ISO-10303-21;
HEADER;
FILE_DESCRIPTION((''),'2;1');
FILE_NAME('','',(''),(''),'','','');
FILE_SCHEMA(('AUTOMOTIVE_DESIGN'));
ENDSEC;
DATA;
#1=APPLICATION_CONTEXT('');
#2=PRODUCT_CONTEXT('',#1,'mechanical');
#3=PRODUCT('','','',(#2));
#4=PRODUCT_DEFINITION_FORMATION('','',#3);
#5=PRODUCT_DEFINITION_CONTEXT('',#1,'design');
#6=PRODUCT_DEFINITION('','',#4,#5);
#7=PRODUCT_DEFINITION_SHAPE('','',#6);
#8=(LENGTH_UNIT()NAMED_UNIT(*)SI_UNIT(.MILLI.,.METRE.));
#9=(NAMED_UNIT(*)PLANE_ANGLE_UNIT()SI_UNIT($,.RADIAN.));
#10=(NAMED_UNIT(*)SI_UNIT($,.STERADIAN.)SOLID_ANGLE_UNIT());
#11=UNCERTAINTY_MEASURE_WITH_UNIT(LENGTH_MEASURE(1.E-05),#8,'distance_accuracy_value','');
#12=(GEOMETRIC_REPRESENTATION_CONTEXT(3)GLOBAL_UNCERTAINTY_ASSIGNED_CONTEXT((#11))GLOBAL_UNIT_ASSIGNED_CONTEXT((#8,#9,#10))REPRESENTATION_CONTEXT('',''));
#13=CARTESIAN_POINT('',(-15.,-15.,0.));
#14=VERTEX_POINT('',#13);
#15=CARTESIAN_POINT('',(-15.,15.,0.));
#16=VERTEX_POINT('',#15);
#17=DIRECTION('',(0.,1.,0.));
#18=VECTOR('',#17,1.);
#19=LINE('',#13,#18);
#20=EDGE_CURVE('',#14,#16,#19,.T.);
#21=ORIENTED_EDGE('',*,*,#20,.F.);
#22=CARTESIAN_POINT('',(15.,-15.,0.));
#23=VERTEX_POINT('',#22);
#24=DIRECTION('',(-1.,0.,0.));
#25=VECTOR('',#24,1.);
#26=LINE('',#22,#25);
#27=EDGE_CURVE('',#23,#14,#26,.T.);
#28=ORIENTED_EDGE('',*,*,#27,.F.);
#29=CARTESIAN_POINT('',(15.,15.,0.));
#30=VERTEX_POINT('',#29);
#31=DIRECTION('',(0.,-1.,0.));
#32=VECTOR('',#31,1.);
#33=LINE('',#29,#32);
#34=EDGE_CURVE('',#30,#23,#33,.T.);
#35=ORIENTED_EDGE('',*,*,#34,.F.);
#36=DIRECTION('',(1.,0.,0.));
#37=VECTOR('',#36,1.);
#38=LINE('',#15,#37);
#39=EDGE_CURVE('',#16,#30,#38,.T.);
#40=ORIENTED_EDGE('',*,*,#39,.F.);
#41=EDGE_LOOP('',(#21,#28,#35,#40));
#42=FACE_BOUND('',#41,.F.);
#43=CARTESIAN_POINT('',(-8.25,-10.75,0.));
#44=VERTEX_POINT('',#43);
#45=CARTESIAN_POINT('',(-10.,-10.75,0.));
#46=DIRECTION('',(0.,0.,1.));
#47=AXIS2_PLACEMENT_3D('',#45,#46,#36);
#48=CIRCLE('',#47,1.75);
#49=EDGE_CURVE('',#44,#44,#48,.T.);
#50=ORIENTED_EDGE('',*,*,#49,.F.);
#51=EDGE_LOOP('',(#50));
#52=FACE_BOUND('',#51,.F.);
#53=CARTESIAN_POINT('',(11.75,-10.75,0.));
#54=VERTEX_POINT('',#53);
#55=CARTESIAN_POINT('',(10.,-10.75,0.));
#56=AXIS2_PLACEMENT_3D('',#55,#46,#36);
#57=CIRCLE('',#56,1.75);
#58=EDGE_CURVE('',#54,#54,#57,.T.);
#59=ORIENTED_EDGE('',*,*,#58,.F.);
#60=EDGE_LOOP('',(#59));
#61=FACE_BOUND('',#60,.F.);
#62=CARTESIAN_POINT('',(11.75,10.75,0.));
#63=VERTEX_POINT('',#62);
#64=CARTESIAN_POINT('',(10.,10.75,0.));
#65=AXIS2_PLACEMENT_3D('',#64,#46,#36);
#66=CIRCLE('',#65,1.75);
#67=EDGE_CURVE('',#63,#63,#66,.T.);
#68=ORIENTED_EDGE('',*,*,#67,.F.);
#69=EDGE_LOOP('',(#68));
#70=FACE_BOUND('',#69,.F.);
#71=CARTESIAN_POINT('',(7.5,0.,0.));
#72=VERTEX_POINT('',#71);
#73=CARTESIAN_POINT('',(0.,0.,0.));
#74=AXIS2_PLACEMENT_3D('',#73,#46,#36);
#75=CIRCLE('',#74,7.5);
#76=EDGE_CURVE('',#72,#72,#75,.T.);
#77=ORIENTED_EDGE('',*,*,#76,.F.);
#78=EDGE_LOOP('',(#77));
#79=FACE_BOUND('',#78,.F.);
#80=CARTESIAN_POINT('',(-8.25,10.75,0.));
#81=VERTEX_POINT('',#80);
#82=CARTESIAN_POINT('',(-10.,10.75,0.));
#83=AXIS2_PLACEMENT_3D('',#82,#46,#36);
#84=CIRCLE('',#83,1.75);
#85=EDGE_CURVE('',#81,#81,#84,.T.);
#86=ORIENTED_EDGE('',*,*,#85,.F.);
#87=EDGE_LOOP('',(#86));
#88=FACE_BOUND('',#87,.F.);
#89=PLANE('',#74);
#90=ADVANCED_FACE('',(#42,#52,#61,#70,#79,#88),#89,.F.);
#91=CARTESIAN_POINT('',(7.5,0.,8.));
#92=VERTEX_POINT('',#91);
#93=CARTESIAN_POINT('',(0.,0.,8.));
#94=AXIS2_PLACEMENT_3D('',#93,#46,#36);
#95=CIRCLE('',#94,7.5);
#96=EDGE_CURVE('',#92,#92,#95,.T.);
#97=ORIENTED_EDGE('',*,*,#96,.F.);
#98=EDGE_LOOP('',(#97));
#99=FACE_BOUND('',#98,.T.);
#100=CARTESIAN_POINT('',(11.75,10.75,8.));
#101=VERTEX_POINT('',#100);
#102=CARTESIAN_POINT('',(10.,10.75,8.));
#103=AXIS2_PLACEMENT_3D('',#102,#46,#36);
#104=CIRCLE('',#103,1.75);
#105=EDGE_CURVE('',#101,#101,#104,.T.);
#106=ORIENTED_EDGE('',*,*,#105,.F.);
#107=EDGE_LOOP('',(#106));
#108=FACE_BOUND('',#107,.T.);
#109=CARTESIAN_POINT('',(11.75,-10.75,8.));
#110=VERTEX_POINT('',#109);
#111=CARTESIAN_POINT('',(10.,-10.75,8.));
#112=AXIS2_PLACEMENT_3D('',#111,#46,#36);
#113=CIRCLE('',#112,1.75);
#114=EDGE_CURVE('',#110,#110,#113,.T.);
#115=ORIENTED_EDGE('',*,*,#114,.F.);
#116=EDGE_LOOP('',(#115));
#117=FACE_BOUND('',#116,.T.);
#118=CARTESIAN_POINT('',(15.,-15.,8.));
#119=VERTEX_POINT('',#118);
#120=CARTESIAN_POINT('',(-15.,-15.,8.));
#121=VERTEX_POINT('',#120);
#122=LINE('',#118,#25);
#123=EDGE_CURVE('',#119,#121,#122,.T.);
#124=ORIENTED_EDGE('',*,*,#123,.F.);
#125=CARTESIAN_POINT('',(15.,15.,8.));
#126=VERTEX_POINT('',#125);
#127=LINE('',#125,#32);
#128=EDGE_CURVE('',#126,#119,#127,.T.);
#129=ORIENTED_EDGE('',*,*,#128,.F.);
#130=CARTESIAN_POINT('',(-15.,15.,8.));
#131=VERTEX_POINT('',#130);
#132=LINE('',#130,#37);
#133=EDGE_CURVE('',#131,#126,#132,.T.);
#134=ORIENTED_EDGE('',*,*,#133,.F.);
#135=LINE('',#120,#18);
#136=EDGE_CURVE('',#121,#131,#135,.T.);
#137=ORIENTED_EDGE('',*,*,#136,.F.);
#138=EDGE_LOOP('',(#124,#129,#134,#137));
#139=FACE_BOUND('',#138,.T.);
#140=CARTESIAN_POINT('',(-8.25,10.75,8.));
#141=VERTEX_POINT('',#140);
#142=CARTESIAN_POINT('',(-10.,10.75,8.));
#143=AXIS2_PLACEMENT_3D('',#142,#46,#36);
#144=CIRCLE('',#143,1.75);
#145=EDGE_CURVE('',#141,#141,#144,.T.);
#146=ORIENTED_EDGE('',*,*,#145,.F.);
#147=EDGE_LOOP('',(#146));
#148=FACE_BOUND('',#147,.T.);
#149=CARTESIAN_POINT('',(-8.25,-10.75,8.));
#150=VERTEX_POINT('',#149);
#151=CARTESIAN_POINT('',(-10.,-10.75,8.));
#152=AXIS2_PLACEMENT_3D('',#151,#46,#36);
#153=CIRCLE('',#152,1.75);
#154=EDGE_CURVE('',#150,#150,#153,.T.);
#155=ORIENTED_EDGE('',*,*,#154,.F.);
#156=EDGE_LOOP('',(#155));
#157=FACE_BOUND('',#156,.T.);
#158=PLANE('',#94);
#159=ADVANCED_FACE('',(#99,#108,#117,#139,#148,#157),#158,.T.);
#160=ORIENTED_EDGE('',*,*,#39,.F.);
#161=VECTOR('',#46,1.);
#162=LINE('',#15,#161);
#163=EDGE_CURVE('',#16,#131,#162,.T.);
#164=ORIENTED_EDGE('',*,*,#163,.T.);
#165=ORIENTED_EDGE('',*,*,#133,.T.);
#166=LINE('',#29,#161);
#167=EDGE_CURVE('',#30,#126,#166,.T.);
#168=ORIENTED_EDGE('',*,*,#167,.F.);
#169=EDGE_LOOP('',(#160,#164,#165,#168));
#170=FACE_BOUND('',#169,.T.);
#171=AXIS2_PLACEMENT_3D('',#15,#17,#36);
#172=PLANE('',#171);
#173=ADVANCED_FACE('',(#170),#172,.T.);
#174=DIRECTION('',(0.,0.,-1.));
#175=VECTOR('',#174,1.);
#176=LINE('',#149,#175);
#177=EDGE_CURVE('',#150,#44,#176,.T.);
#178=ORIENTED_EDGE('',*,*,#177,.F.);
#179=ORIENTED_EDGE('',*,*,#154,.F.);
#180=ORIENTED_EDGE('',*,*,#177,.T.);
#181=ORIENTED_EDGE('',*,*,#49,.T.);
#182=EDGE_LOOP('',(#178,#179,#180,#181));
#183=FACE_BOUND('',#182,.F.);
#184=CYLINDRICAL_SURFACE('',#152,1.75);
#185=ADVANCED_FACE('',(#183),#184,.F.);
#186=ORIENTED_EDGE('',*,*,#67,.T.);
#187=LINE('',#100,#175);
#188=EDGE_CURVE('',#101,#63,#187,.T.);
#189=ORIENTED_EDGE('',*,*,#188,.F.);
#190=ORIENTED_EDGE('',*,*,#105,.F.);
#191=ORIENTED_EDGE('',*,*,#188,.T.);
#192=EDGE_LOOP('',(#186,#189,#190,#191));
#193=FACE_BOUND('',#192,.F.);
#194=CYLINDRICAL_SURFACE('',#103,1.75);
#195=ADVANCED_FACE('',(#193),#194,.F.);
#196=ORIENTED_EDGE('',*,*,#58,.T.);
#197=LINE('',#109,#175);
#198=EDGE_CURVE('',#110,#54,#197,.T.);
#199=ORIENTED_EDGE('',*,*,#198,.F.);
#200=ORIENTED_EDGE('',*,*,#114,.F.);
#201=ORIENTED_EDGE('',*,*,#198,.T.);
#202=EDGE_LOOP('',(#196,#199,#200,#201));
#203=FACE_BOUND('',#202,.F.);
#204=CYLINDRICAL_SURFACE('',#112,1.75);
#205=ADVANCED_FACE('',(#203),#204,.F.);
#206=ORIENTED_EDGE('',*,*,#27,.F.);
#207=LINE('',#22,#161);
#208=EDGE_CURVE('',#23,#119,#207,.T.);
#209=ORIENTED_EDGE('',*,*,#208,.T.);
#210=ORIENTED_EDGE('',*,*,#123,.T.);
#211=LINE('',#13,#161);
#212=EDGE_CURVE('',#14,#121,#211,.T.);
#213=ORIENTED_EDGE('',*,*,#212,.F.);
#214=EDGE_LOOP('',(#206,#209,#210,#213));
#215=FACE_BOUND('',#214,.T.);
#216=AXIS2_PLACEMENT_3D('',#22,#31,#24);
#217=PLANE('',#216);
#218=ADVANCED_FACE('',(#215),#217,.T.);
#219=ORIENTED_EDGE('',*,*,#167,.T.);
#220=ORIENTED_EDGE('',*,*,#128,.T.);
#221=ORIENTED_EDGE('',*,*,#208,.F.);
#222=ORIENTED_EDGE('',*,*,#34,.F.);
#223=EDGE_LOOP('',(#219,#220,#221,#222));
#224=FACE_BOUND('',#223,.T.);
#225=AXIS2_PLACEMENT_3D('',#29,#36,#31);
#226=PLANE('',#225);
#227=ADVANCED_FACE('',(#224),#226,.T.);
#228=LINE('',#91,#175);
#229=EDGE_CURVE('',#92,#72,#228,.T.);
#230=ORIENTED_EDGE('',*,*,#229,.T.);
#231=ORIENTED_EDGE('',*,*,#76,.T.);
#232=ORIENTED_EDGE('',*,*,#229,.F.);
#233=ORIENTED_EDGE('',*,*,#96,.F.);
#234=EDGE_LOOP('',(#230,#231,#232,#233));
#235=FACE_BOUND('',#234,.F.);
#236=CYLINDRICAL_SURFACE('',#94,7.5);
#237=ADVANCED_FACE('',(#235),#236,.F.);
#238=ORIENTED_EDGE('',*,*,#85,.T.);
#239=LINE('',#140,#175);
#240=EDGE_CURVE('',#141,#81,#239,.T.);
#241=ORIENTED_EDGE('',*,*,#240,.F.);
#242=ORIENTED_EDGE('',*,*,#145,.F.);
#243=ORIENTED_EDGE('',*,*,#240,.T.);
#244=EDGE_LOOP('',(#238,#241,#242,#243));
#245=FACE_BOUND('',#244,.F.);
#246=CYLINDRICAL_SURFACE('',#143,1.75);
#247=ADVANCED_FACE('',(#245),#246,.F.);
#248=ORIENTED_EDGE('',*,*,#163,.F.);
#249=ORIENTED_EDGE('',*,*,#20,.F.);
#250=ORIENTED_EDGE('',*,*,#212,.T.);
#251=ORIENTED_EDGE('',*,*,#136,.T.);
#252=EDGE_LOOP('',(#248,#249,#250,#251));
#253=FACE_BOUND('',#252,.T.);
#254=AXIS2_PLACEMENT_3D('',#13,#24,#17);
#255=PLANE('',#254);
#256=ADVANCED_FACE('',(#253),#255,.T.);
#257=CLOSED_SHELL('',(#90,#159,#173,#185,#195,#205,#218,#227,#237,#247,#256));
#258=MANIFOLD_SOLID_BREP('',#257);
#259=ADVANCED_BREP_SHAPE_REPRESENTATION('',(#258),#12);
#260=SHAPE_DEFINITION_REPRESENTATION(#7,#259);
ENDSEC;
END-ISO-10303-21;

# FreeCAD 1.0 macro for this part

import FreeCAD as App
import Part
import Sketcher
from FreeCAD import Vector

doc = App.newDocument("Part")
params = doc.addObject("Spreadsheet::Sheet", "Params")
for row, (alias, value) in enumerate([
    ("sketch1_width", "30 mm"),
    ("pad1_length", "8 mm"),
    ("sketch2_diameter", "15 mm"),
    ("sketch3_diameter", "3.5 mm"),
], start=1):
    params.set(f"A{row}", alias)
    params.set(f"B{row}", "=" + value)
    params.setAlias(f"B{row}", alias)

body = doc.addObject("PartDesign::Body", "Body")

# Sketch on XY plane
sketch1 = doc.addObject("Sketcher::SketchObject", "Sketch")
body.addObject(sketch1)
sketch1.AttachmentSupport = (doc.XY_Plane, [""])
sketch1.MapMode = "FlatFace"
sketch1.addGeometry(Part.LineSegment(Vector(15, 15, 0), Vector(-15, 15, 0)), False)
sketch1.addGeometry(Part.LineSegment(Vector(-15, 15, 0), Vector(-15, -15, 0)), False)
sketch1.addGeometry(Part.LineSegment(Vector(-15, -15, 0), Vector(15, -15, 0)), False)
sketch1.addGeometry(Part.LineSegment(Vector(15, -15, 0), Vector(15, 15, 0)), False)
sketch1.addConstraint(Sketcher.Constraint("Coincident", 0, 2, 1, 1))
sketch1.addConstraint(Sketcher.Constraint("Coincident", 1, 2, 2, 1))
sketch1.addConstraint(Sketcher.Constraint("Coincident", 2, 2, 3, 1))
sketch1.addConstraint(Sketcher.Constraint("Coincident", 3, 2, 0, 1))
sketch1.addConstraint(Sketcher.Constraint("Horizontal", 0))
sketch1.addConstraint(Sketcher.Constraint("Vertical", 1))
sketch1.addConstraint(Sketcher.Constraint("Horizontal", 2))
sketch1.addConstraint(Sketcher.Constraint("Vertical", 3))
sketch1.addConstraint(Sketcher.Constraint("Symmetric", 0, 2, 2, 2, -1, 1))
sketch1.addConstraint(Sketcher.Constraint("Equal", 2, 1))
sketch1.addConstraint(Sketcher.Constraint("DistanceX", 0, 2, 0, 1, 30.0))
sketch1.setExpression("Constraints[10]", "Params.sketch1_width")
pad1 = doc.addObject("PartDesign::Pad", "Pad")
body.addObject(pad1)
pad1.Profile = sketch1
pad1.setExpression("Length", "Params.pad1_length")

# Sketch on XY plane
sketch2 = doc.addObject("Sketcher::SketchObject", "Sketch001")
body.addObject(sketch2)
sketch2.AttachmentSupport = (doc.XY_Plane, [""])
sketch2.MapMode = "FlatFace"
sketch2.AttachmentOffset = App.Placement(Vector(0, 0, 8), App.Rotation())
sketch2.addGeometry(Part.Circle(Vector(0, 0, 0), Vector(0, 0, 1), 7.5), False)
sketch2.addConstraint(Sketcher.Constraint("Coincident", 0, 3, -1, 1))
sketch2.addConstraint(Sketcher.Constraint("Diameter", 0, 15.0))
sketch2.setExpression("Constraints[1]", "Params.sketch2_diameter")
pocket1 = doc.addObject("PartDesign::Pocket", "Pocket")
body.addObject(pocket1)
pocket1.Profile = sketch2
pocket1.Type = "ThroughAll"

# Sketch on XY plane
sketch3 = doc.addObject("Sketcher::SketchObject", "Sketch002")
body.addObject(sketch3)
sketch3.AttachmentSupport = (doc.XY_Plane, [""])
sketch3.MapMode = "FlatFace"
sketch3.AttachmentOffset = App.Placement(Vector(0, 0, 8), App.Rotation())
sketch3.addGeometry(Part.Circle(Vector(10, -10.75, 0), Vector(0, 0, 1), 1.75), False)
sketch3.addGeometry(Part.Circle(Vector(10, 10.75, 0), Vector(0, 0, 1), 1.75), False)
sketch3.addGeometry(Part.Circle(Vector(-10, -10.75, 0), Vector(0, 0, 1), 1.75), False)
sketch3.addGeometry(Part.Circle(Vector(-10, 10.75, 0), Vector(0, 0, 1), 1.75), False)
sketch3.addConstraint(Sketcher.Constraint("Equal", 0, 1))
sketch3.addConstraint(Sketcher.Constraint("Equal", 1, 2))
sketch3.addConstraint(Sketcher.Constraint("Equal", 2, 3))
sketch3.addConstraint(Sketcher.Constraint("Symmetric", 1, 3, 2, 3, -1, 1))
sketch3.addConstraint(Sketcher.Constraint("Symmetric", 0, 3, 3, 3, -1, 1))
sketch3.addConstraint(Sketcher.Constraint("Symmetric", 0, 3, 2, 3, -2))
sketch3.addConstraint(Sketcher.Constraint("Diameter", 0, 3.5))
sketch3.addConstraint(Sketcher.Constraint("DistanceX", 2, 3, 0, 3, 20.0))
sketch3.addConstraint(Sketcher.Constraint("DistanceY", 0, 3, 1, 3, 21.5))
sketch3.setExpression("Constraints[6]", "Params.sketch3_diameter")
pocket2 = doc.addObject("PartDesign::Pocket", "Pocket001")
body.addObject(pocket2)
pocket2.Profile = sketch3
pocket2.Type = "ThroughAll"

doc.recompute()
